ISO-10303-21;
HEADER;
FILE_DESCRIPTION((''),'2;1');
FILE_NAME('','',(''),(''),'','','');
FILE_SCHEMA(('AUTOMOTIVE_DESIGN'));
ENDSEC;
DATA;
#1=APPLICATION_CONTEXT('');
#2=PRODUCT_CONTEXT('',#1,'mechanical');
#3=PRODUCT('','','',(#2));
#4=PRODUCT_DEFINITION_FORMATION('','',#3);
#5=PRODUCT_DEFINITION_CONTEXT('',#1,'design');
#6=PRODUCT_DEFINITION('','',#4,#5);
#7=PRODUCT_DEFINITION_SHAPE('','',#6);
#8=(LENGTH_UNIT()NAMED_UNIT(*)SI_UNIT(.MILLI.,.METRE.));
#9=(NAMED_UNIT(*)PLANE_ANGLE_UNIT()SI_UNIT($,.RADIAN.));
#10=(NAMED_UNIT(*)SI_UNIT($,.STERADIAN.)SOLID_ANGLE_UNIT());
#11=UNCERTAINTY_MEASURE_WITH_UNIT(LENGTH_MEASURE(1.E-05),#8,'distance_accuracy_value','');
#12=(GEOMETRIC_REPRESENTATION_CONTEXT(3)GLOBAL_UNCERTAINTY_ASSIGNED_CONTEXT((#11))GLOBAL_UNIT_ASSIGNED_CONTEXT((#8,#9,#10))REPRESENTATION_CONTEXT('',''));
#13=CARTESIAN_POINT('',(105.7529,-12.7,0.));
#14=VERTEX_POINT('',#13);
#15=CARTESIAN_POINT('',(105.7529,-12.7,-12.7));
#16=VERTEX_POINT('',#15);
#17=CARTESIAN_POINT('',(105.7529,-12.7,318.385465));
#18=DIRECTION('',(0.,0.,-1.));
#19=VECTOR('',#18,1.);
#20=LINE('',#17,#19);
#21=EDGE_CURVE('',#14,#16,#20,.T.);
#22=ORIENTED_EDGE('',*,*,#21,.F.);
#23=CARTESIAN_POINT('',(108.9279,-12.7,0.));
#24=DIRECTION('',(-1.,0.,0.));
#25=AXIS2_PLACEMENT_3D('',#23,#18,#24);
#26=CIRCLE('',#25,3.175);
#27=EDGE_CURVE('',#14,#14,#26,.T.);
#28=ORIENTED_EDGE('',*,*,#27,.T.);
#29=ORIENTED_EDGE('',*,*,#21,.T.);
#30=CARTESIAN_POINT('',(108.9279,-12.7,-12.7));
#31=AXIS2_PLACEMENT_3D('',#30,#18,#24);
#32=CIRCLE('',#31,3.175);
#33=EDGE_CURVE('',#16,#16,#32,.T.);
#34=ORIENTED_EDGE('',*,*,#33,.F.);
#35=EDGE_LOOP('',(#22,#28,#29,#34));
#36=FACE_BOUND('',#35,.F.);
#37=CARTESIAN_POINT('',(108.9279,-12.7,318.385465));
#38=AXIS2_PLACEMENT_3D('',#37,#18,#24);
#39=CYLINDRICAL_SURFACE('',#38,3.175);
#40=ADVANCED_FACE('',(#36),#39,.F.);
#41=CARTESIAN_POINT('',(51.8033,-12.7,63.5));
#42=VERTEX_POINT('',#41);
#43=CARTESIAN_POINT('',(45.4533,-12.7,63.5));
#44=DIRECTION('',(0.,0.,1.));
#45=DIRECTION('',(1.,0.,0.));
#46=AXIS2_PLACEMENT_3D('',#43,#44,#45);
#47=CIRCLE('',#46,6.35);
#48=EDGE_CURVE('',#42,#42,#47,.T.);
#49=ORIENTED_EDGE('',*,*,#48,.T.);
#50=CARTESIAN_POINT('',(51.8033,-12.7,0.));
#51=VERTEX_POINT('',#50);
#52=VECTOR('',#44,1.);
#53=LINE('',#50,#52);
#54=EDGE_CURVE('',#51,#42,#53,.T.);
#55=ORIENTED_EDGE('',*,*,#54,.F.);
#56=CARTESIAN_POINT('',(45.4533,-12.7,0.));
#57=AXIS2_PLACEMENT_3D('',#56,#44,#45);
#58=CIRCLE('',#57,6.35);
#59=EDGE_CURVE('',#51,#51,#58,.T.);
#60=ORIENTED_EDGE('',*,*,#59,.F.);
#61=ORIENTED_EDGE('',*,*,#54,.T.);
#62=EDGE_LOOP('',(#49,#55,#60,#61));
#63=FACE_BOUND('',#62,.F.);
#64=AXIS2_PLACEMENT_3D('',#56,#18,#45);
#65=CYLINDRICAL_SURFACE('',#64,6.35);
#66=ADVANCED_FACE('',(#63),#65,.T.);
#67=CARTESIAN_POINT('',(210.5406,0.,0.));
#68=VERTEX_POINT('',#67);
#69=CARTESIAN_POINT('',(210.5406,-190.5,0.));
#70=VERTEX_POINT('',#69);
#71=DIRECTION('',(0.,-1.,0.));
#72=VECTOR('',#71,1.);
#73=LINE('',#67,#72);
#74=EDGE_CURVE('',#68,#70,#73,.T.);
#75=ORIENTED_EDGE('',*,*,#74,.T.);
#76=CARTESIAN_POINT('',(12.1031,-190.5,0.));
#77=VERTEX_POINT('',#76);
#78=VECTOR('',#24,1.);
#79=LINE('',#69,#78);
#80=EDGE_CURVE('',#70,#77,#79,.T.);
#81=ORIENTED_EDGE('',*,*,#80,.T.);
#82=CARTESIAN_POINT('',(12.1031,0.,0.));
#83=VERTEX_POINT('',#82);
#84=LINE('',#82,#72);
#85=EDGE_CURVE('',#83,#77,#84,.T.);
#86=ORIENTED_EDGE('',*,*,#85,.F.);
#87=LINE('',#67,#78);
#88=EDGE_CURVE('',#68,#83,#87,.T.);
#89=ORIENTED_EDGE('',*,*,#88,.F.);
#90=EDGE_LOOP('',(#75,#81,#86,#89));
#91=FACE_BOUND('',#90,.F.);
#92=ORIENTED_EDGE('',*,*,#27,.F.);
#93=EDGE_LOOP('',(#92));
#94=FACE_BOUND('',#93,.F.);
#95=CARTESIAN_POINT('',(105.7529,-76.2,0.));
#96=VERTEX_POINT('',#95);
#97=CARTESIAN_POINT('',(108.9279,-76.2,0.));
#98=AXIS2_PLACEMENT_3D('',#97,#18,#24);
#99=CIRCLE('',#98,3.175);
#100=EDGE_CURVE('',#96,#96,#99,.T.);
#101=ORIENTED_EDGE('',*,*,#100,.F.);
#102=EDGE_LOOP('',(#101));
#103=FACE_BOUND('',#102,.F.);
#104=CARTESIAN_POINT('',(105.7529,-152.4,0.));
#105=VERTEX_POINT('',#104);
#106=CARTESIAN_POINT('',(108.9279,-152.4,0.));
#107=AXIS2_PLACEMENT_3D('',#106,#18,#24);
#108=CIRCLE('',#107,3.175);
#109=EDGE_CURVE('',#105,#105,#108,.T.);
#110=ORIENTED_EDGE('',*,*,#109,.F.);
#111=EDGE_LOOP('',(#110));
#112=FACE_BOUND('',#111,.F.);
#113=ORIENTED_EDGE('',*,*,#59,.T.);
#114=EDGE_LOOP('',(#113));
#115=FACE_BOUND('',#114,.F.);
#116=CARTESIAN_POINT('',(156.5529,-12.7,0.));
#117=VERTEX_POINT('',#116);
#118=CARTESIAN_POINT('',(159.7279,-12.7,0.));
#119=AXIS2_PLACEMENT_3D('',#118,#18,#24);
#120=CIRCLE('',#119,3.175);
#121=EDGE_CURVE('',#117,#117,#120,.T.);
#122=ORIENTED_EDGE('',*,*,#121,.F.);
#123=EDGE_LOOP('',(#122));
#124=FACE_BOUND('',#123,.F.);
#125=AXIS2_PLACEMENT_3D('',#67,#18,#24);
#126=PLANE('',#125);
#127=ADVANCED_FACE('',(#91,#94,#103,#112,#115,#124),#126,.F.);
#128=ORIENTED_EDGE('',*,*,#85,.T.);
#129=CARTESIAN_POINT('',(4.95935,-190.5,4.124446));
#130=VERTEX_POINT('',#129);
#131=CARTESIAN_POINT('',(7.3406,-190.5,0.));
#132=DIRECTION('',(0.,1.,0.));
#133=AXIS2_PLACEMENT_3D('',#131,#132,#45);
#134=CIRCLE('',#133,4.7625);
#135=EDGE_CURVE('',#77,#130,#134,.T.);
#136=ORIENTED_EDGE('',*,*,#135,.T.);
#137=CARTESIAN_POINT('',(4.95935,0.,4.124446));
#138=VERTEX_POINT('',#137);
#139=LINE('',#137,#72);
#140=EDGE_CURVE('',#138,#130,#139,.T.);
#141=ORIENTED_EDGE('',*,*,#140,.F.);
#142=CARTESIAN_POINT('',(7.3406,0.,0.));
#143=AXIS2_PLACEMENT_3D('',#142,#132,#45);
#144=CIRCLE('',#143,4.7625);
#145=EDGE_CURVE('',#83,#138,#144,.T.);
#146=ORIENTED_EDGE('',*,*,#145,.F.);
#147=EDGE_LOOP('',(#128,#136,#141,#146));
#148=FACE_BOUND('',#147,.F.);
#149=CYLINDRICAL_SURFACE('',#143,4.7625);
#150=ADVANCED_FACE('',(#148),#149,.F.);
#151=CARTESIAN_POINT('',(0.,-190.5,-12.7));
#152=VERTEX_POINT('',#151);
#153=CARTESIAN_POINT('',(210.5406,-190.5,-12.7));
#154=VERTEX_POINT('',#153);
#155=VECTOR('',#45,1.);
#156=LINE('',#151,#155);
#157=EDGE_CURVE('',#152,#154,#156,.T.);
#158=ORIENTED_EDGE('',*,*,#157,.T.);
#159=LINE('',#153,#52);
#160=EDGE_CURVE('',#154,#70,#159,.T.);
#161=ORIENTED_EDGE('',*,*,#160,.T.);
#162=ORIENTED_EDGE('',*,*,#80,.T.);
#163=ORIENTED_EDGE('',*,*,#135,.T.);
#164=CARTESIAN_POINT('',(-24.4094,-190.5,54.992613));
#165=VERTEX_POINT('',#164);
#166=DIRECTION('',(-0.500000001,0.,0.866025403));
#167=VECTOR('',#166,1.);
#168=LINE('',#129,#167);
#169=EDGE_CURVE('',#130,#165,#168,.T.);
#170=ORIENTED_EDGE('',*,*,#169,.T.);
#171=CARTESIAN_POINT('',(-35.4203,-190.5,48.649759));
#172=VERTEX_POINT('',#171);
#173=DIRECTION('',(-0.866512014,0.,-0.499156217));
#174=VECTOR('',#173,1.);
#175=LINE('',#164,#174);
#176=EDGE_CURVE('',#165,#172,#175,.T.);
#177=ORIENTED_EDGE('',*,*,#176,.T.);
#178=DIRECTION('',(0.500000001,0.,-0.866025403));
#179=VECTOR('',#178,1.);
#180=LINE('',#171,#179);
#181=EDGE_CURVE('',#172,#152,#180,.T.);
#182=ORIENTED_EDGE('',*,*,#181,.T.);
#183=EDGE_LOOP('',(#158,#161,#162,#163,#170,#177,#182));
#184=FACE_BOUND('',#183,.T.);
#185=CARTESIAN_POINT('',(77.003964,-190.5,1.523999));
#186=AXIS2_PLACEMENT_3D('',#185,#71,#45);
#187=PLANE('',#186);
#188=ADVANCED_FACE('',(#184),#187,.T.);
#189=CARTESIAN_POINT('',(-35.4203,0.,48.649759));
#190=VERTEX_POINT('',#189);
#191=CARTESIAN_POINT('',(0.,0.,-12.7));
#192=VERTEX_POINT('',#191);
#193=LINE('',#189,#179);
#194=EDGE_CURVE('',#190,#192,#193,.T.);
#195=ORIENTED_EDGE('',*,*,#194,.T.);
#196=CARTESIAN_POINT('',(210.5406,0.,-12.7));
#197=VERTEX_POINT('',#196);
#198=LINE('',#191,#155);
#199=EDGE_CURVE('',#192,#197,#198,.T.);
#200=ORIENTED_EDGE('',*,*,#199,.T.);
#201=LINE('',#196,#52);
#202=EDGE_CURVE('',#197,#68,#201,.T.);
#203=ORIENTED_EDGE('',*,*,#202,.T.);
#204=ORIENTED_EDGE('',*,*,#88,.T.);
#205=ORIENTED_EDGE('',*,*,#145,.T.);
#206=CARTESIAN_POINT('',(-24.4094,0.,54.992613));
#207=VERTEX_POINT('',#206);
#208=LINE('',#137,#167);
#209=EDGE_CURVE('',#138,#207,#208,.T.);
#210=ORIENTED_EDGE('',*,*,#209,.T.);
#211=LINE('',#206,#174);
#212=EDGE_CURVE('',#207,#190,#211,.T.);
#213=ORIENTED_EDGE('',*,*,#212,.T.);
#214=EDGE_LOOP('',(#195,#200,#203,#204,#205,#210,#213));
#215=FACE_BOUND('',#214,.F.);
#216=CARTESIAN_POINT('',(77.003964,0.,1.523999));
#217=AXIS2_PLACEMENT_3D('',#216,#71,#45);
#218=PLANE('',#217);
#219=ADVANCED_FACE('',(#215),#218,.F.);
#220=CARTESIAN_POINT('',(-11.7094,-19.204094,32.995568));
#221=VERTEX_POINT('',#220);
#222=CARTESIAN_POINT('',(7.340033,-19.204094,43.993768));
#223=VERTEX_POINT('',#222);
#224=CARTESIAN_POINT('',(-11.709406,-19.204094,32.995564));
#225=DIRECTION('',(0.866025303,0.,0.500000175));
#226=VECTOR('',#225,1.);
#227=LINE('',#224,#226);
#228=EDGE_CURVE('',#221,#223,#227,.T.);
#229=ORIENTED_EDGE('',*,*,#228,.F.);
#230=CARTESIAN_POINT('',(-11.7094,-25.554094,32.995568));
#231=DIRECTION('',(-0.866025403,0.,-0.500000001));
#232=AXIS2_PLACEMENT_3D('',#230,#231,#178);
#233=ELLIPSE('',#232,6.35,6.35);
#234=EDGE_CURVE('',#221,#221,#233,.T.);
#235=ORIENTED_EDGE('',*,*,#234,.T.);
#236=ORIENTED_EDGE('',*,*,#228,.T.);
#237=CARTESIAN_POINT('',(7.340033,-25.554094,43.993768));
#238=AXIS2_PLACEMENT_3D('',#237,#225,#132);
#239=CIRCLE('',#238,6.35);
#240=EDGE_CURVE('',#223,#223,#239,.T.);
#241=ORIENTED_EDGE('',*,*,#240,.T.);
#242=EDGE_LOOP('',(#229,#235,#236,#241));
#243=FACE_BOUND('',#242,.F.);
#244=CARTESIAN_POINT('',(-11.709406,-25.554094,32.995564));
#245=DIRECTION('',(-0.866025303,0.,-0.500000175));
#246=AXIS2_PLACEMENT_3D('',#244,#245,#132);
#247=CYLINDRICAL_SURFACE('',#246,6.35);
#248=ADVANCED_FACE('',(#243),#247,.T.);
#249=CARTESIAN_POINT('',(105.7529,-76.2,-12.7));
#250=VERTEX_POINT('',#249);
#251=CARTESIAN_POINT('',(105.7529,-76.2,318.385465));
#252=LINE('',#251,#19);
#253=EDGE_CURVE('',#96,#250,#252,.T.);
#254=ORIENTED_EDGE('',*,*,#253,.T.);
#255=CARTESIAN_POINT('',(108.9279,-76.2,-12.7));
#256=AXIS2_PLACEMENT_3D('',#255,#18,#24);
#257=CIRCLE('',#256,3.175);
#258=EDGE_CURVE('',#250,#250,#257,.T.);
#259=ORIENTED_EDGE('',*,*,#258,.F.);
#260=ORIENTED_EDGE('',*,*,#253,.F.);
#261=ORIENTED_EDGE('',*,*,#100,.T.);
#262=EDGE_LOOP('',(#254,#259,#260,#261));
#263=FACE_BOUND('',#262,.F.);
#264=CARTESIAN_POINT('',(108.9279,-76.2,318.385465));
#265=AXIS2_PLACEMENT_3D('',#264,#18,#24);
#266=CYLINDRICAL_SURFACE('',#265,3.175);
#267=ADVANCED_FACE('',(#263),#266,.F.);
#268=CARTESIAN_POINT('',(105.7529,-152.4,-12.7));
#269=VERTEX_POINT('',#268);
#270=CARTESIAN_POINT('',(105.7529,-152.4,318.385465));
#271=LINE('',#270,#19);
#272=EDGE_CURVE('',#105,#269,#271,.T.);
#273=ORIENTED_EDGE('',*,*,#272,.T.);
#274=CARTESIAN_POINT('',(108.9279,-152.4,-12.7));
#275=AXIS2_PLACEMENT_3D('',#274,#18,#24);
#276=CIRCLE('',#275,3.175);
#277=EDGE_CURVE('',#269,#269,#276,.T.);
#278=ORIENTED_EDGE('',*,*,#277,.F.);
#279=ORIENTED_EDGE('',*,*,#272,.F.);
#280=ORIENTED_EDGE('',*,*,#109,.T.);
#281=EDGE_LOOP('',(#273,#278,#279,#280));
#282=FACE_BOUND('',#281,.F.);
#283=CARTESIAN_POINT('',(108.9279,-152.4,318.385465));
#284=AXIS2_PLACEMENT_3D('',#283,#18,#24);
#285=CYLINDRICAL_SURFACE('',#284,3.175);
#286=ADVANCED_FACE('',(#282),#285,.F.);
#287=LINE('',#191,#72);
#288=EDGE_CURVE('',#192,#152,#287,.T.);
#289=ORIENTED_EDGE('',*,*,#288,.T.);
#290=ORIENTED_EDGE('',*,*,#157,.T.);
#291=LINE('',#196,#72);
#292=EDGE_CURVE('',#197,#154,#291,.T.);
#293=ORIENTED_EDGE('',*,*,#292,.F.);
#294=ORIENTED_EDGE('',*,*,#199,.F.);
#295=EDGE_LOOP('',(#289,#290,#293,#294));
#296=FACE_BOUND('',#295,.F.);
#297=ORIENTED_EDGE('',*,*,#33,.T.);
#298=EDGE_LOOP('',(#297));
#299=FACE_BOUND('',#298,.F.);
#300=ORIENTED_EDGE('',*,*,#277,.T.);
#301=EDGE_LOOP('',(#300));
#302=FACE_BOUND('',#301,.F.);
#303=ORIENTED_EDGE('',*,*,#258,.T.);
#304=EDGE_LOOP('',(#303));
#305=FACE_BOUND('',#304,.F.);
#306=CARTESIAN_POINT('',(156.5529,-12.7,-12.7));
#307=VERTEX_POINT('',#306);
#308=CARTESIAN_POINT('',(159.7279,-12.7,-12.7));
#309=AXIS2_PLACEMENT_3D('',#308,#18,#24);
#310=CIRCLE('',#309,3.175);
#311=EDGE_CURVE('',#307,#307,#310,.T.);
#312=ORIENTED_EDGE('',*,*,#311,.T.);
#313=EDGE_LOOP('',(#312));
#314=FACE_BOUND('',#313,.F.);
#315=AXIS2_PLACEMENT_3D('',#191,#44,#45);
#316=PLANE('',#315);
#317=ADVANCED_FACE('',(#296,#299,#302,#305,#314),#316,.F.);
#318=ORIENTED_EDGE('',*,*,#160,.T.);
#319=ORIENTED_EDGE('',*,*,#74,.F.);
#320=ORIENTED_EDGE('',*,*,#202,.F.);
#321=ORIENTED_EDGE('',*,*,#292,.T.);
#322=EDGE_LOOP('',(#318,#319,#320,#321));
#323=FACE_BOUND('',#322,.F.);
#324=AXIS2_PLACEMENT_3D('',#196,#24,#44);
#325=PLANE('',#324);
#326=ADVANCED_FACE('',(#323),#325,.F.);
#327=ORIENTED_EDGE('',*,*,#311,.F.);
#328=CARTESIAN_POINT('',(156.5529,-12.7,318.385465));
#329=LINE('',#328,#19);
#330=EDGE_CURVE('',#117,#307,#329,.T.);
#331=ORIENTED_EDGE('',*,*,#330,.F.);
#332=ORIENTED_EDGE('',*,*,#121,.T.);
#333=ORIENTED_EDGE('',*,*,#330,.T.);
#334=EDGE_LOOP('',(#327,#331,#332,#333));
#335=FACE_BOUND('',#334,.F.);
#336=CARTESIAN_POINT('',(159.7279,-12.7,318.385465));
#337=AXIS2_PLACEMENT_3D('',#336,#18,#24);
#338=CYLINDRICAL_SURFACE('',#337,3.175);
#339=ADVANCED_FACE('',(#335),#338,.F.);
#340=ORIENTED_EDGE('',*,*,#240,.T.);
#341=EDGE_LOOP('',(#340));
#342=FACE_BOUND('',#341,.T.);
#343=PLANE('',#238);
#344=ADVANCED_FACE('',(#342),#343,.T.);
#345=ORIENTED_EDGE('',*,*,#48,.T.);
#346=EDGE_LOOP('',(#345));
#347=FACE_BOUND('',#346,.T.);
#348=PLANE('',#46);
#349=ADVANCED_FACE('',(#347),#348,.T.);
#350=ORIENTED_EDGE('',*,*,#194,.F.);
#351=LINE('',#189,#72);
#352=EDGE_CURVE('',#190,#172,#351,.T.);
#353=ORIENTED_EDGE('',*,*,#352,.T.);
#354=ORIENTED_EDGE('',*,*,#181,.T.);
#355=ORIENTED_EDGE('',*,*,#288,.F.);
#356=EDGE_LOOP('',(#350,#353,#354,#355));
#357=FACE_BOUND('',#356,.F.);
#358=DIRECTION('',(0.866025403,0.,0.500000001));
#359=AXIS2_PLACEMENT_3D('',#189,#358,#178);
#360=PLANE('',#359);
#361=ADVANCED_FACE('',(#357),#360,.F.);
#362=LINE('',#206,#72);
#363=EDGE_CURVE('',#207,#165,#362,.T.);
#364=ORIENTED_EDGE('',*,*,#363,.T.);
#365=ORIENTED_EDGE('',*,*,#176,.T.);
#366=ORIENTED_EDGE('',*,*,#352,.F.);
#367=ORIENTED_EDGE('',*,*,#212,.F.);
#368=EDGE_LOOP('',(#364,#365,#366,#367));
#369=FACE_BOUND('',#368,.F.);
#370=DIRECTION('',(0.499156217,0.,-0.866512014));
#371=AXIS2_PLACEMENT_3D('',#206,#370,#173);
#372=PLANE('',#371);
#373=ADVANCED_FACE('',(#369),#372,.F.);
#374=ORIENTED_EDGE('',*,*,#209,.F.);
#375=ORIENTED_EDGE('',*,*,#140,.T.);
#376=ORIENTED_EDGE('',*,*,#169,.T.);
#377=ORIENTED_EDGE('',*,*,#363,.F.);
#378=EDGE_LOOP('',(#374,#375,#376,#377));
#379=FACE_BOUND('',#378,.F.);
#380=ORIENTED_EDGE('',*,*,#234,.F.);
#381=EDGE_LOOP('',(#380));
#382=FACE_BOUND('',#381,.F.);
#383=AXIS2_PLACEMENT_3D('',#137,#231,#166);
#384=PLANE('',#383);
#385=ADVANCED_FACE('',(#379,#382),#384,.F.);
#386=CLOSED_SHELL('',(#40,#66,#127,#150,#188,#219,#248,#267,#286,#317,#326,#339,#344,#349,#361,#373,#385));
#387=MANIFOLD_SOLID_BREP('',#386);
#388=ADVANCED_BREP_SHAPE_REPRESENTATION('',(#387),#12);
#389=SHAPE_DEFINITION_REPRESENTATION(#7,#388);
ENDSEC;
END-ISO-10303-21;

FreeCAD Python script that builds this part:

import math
import FreeCAD as App
import Part
import Sketcher
Q = App.Units.Quantity

doc = App.newDocument("Part")
body = doc.addObject("PartDesign::Body", "Body")

# Sketch on XZ plane
sketch1 = body.newObject("Sketcher::SketchObject", "Sketch")
sketch1.AttachmentSupport = (doc.getObject("XZ_Plane"), [""])
sketch1.MapMode = "FlatFace"
sketch1.addGeometry([
    Part.LineSegment(App.Vector(210.5, 0, 0), App.Vector(12.1, 0, 0)),  # 0
    Part.ArcOfCircle(Part.Circle(App.Vector(7.3, 0, 0), App.Vector(0, 0, 1), 4.8), math.radians(120), math.radians(360)),  # 1
    Part.LineSegment(App.Vector(5, 4.1, 0), App.Vector(-24.4, 55, 0)),  # 2
    Part.LineSegment(App.Vector(-24.4, 55, 0), App.Vector(-35.4, 48.6, 0)),  # 3
    Part.LineSegment(App.Vector(-35.4, 48.6, 0), App.Vector(0, -12.7, 0)),  # 4
    Part.LineSegment(App.Vector(0, -12.7, 0), App.Vector(210.5, -12.7, 0)),  # 5
    Part.LineSegment(App.Vector(210.5, -12.7, 0), App.Vector(210.5, 0, 0)),  # 6
], False)
sketch1.addConstraint([
    Sketcher.Constraint("Coincident", 0, 2, 1, 2),
    Sketcher.Constraint("Coincident", 1, 1, 2, 1),
    Sketcher.Constraint("Coincident", 2, 2, 3, 1),
    Sketcher.Constraint("Coincident", 3, 2, 4, 1),
    Sketcher.Constraint("Coincident", 4, 2, 5, 1),
    Sketcher.Constraint("Coincident", 5, 2, 6, 1),
    Sketcher.Constraint("Coincident", 6, 2, 0, 1),
    Sketcher.Constraint("Horizontal", 0),
    Sketcher.Constraint("Horizontal", 5),
    Sketcher.Constraint("Vertical", 6),
    Sketcher.Constraint("PointOnObject", 1, 3, -1),
    Sketcher.Constraint("PointOnObject", 0, 2, -1),
    Sketcher.Constraint("PointOnObject", 4, 2, -2),
    Sketcher.Constraint("Parallel", 2, 4),
    Sketcher.Constraint("DistanceY", 6, 1, 6, 2, Q("0.5 in")),
    Sketcher.Constraint("Angle", 2, Q("120 deg")),
    Sketcher.Constraint("Radius", 1, Q("0.1875 in")),
    Sketcher.Constraint("DistanceX", 1, 3, 5, 2, Q("8 in")),
    Sketcher.Constraint("DistanceX", 5, 1, 5, 2, Q("8.289 in")),
    Sketcher.Constraint("DistanceX", 2, 2, 1, 3, Q("1.25 in")),
    Sketcher.Constraint("Distance", 2, Q("2.3125 in")),
    Sketcher.Constraint("Distance", 4, Q("2.789 in")),
])
pad1 = body.newObject("PartDesign::Pad", "Pad")
pad1.Profile = sketch1
pad1.Length = Q("7.5 in")

# Sketch on an angled plane
sketch2 = body.newObject("Sketcher::SketchObject", "Sketch001")
sketch2.Placement = App.Placement(App.Vector(5.50545, 0, 3.178573), App.Rotation(App.Vector(0, 1, 0), App.Vector(-0.500000175, 0, 0.866025303), App.Vector(0.866025303, 0, 0.500000175), "ZXY"))
sketch2.addGeometry(Part.Circle(App.Vector(-26, 34, 0), App.Vector(0, 0, 1), 6), False)
sketch2.addConstraint([
    Sketcher.Constraint("Diameter", 0, Q("0.5 in")),
    Sketcher.Constraint("DistanceY", -1, 1, 0, 3, Q("1.3555 in")),
    Sketcher.Constraint("DistanceX", 0, 3, -1, 1, Q("25.554094 mm")),
])
pad2 = body.newObject("PartDesign::Pad", "Pad001")
pad2.Profile = sketch2
pad2.Length = Q("0.866 in")

# Sketch on XY plane
sketch3 = body.newObject("Sketcher::SketchObject", "Sketch002")
sketch3.AttachmentSupport = (doc.getObject("XY_Plane"), [""])
sketch3.MapMode = "FlatFace"
sketch3.addGeometry([
    Part.Circle(App.Vector(108.9, -12.7, 0), App.Vector(0, 0, 1), 3.2),
    Part.Circle(App.Vector(159.7, -12.7, 0), App.Vector(0, 0, 1), 3.2),
    Part.Circle(App.Vector(108.9, -76.2, 0), App.Vector(0, 0, 1), 3.2),
    Part.Circle(App.Vector(108.9, -152.4, 0), App.Vector(0, 0, 1), 3.2),
], False)
sketch3.addConstraint([
    Sketcher.Constraint("Equal", 0, 1),
    Sketcher.Constraint("Equal", 1, 2),
    Sketcher.Constraint("Equal", 2, 3),
    Sketcher.Constraint("Horizontal", 0, 3, 1, 3),
    Sketcher.Constraint("Vertical", 0, 3, 2, 3),
    Sketcher.Constraint("Vertical", 2, 3, 3, 3),
    Sketcher.Constraint("Diameter", 0, Q("0.25 in")),
    Sketcher.Constraint("DistanceY", 2, 3, -1, 1, Q("3 in")),
    Sketcher.Constraint("DistanceY", 3, 3, -1, 1, Q("6 in")),
    Sketcher.Constraint("DistanceX", 0, 3, 1, 3, Q("2 in")),
    Sketcher.Constraint("DistanceY", 0, 3, -1, 1, Q("0.5 in")),
    Sketcher.Constraint("DistanceX", -1, 1, 0, 3, Q("4.2885 in")),
])
doc.recompute()
hole = body.newObject("PartDesign::Hole", "Hole")
hole.Profile = sketch3
hole.ThreadType = "None"
hole.Diameter = Q("0.25 in")
hole.DepthType = "ThroughAll"

# Sketch on XY plane
sketch4 = body.newObject("Sketcher::SketchObject", "Sketch003")
sketch4.AttachmentSupport = (doc.getObject("XY_Plane"), [""])
sketch4.MapMode = "FlatFace"
sketch4.addGeometry(Part.Circle(App.Vector(45, -13, 0), App.Vector(0, 0, 1), 6), False)
sketch4.addConstraint([
    Sketcher.Constraint("Diameter", 0, Q("0.5 in")),
    Sketcher.Constraint("DistanceY", 0, 3, -1, 1, Q("0.5 in")),
    Sketcher.Constraint("DistanceX", -1, 1, 0, 3, Q("1.7895 in")),
])
pad3 = body.newObject("PartDesign::Pad", "Pad002")
pad3.Profile = sketch4
pad3.Length = Q("2.5 in")

doc.recompute()
